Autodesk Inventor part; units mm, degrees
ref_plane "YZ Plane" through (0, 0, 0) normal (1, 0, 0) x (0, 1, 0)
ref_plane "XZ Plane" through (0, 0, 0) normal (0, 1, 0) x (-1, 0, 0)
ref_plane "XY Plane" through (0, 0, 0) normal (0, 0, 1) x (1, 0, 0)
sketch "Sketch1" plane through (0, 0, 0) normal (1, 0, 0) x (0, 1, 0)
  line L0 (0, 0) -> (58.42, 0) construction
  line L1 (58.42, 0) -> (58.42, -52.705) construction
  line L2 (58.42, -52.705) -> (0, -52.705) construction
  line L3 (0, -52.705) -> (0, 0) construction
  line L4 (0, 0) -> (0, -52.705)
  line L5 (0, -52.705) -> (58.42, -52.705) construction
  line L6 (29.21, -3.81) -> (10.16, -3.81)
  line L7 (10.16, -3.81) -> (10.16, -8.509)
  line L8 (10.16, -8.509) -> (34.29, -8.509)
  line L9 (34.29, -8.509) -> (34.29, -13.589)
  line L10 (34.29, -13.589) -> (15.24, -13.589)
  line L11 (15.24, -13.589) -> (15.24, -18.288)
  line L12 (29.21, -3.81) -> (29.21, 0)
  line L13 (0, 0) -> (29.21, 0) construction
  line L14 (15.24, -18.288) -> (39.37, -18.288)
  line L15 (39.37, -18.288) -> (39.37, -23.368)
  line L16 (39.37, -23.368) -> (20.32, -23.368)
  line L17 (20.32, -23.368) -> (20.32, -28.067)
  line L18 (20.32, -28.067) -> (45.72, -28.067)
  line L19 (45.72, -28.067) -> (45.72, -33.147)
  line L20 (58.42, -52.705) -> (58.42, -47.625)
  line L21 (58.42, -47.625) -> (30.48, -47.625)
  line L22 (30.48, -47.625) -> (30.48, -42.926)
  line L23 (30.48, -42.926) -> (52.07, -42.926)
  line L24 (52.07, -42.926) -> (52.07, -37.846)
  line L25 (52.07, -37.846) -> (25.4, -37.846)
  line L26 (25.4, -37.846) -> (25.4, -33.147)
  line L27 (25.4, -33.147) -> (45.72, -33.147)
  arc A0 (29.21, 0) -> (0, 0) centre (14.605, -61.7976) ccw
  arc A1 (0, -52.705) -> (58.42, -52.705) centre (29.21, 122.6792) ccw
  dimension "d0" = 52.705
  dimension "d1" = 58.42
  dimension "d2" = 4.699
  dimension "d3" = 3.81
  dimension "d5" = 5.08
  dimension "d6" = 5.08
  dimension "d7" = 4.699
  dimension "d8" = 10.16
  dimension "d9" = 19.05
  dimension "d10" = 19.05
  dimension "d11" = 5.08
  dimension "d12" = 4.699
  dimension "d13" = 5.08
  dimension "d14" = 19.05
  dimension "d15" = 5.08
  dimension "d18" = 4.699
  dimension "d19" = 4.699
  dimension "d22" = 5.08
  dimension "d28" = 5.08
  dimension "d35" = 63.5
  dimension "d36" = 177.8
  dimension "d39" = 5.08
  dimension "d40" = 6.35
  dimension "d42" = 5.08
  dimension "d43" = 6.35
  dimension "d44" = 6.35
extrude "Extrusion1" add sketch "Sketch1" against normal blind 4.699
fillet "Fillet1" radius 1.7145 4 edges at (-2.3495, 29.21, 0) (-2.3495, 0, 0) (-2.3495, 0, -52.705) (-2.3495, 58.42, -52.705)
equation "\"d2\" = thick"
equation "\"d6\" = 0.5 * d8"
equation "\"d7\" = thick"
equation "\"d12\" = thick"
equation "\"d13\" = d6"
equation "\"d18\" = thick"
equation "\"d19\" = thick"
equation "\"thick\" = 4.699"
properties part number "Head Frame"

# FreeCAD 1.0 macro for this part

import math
import FreeCAD as App
import Part
import Sketcher

V = App.Vector
Q = App.Units.Quantity


def edges_at(feature, points):
    """Names of the edges that pass closest to the given points."""
    edges = feature.Shape.Edges
    near = lambda p: min(range(len(edges)), key=lambda i: edges[i].distToShape(Part.Vertex(*p))[0])
    return sorted({f"Edge{near(p) + 1}" for p in points})

doc = App.newDocument("Part")
body = doc.addObject("PartDesign::Body", "Body")

# Sketch on YZ plane
sketch1 = body.newObject("Sketcher::SketchObject", "Sketch")
sketch1.AttachmentSupport = (doc.getObject("YZ_Plane"), [""])
sketch1.MapMode = "FlatFace"
sketch1.addGeometry(Part.ArcOfCircle(Part.Circle(V(14.6, -61.8, 0), V(0, 0, 1), 63.5), math.radians(77), math.radians(103)), False)
sketch1.addGeometry(Part.LineSegment(V(0, 0, 0), V(0, -52.7, 0)), False)
sketch1.addGeometry(Part.ArcOfCircle(Part.Circle(V(29.2, 122.7, 0), V(0, 0, 1), 177.8), math.radians(-99.46), math.radians(-80.54)), False)
sketch1.addGeometry(Part.LineSegment(V(58.4, -52.7, 0), V(58.4, -47.6, 0)), False)
sketch1.addGeometry(Part.LineSegment(V(58.4, -47.6, 0), V(30.5, -47.6, 0)), False)
sketch1.addGeometry(Part.LineSegment(V(30.5, -47.6, 0), V(30.5, -42.9, 0)), False)
sketch1.addGeometry(Part.LineSegment(V(30.5, -42.9, 0), V(52.1, -42.9, 0)), False)
sketch1.addGeometry(Part.LineSegment(V(52.1, -42.9, 0), V(52.1, -37.8, 0)), False)
sketch1.addGeometry(Part.LineSegment(V(52.1, -37.8, 0), V(25.4, -37.8, 0)), False)
sketch1.addGeometry(Part.LineSegment(V(25.4, -37.8, 0), V(25.4, -33.1, 0)), False)
sketch1.addGeometry(Part.LineSegment(V(25.4, -33.1, 0), V(45.7, -33.1, 0)), False)
sketch1.addGeometry(Part.LineSegment(V(45.7, -33.1, 0), V(45.7, -28.1, 0)), False)
sketch1.addGeometry(Part.LineSegment(V(45.7, -28.1, 0), V(20.3, -28.1, 0)), False)
sketch1.addGeometry(Part.LineSegment(V(20.3, -28.1, 0), V(20.3, -23.4, 0)), False)
sketch1.addGeometry(Part.LineSegment(V(20.3, -23.4, 0), V(39.4, -23.4, 0)), False)
sketch1.addGeometry(Part.LineSegment(V(39.4, -23.4, 0), V(39.4, -18.3, 0)), False)
sketch1.addGeometry(Part.LineSegment(V(39.4, -18.3, 0), V(15.2, -18.3, 0)), False)
sketch1.addGeometry(Part.LineSegment(V(15.2, -18.3, 0), V(15.2, -13.6, 0)), False)
sketch1.addGeometry(Part.LineSegment(V(15.2, -13.6, 0), V(34.3, -13.6, 0)), False)
sketch1.addGeometry(Part.LineSegment(V(34.3, -13.6, 0), V(34.3, -8.5, 0)), False)
sketch1.addGeometry(Part.LineSegment(V(34.3, -8.5, 0), V(10.2, -8.5, 0)), False)
sketch1.addGeometry(Part.LineSegment(V(10.2, -8.5, 0), V(10.2, -3.8, 0)), False)
sketch1.addGeometry(Part.LineSegment(V(10.2, -3.8, 0), V(29.2, -3.8, 0)), False)
sketch1.addGeometry(Part.LineSegment(V(29.2, -3.8, 0), V(29.2, 0, 0)), False)
sketch1.addConstraint(Sketcher.Constraint("Coincident", 0, 2, 1, 1))
sketch1.addConstraint(Sketcher.Constraint("Coincident", 1, 2, 2, 1))
sketch1.addConstraint(Sketcher.Constraint("Coincident", 2, 2, 3, 1))
sketch1.addConstraint(Sketcher.Constraint("Coincident", 3, 2, 4, 1))
sketch1.addConstraint(Sketcher.Constraint("Coincident", 4, 2, 5, 1))
sketch1.addConstraint(Sketcher.Constraint("Coincident", 5, 2, 6, 1))
sketch1.addConstraint(Sketcher.Constraint("Coincident", 6, 2, 7, 1))
sketch1.addConstraint(Sketcher.Constraint("Coincident", 7, 2, 8, 1))
sketch1.addConstraint(Sketcher.Constraint("Coincident", 8, 2, 9, 1))
sketch1.addConstraint(Sketcher.Constraint("Coincident", 9, 2, 10, 1))
sketch1.addConstraint(Sketcher.Constraint("Coincident", 10, 2, 11, 1))
sketch1.addConstraint(Sketcher.Constraint("Coincident", 11, 2, 12, 1))
sketch1.addConstraint(Sketcher.Constraint("Coincident", 12, 2, 13, 1))
sketch1.addConstraint(Sketcher.Constraint("Coincident", 13, 2, 14, 1))
sketch1.addConstraint(Sketcher.Constraint("Coincident", 14, 2, 15, 1))
sketch1.addConstraint(Sketcher.Constraint("Coincident", 15, 2, 16, 1))
sketch1.addConstraint(Sketcher.Constraint("Coincident", 16, 2, 17, 1))
sketch1.addConstraint(Sketcher.Constraint("Coincident", 17, 2, 18, 1))
sketch1.addConstraint(Sketcher.Constraint("Coincident", 18, 2, 19, 1))
sketch1.addConstraint(Sketcher.Constraint("Coincident", 19, 2, 20, 1))
sketch1.addConstraint(Sketcher.Constraint("Coincident", 20, 2, 21, 1))
sketch1.addConstraint(Sketcher.Constraint("Coincident", 21, 2, 22, 1))
sketch1.addConstraint(Sketcher.Constraint("Coincident", 22, 2, 23, 1))
sketch1.addConstraint(Sketcher.Constraint("Coincident", 23, 2, 0, 1))
sketch1.addConstraint(Sketcher.Constraint("Vertical", 1))
sketch1.addConstraint(Sketcher.Constraint("Vertical", 3))
sketch1.addConstraint(Sketcher.Constraint("Horizontal", 4))
sketch1.addConstraint(Sketcher.Constraint("Vertical", 5))
sketch1.addConstraint(Sketcher.Constraint("Horizontal", 6))
sketch1.addConstraint(Sketcher.Constraint("Vertical", 7))
sketch1.addConstraint(Sketcher.Constraint("Horizontal", 8))
sketch1.addConstraint(Sketcher.Constraint("Vertical", 9))
sketch1.addConstraint(Sketcher.Constraint("Horizontal", 10))
sketch1.addConstraint(Sketcher.Constraint("Vertical", 11))
sketch1.addConstraint(Sketcher.Constraint("Horizontal", 12))
sketch1.addConstraint(Sketcher.Constraint("Vertical", 13))
sketch1.addConstraint(Sketcher.Constraint("Horizontal", 14))
sketch1.addConstraint(Sketcher.Constraint("Vertical", 15))
sketch1.addConstraint(Sketcher.Constraint("Horizontal", 16))
sketch1.addConstraint(Sketcher.Constraint("Vertical", 17))
sketch1.addConstraint(Sketcher.Constraint("Horizontal", 18))
sketch1.addConstraint(Sketcher.Constraint("Vertical", 19))
sketch1.addConstraint(Sketcher.Constraint("Horizontal", 20))
sketch1.addConstraint(Sketcher.Constraint("Vertical", 21))
sketch1.addConstraint(Sketcher.Constraint("Horizontal", 22))
sketch1.addConstraint(Sketcher.Constraint("Vertical", 23))
sketch1.addConstraint(Sketcher.Constraint("Coincident", 0, 2, -1, 1))
sketch1.addConstraint(Sketcher.Constraint("PointOnObject", 23, 2, -1))
sketch1.addConstraint(Sketcher.Constraint("Horizontal", 1, 2, 2, 2))
sketch1.addConstraint(Sketcher.Constraint("Vertical", 2, 3, 22, 2))
sketch1.addConstraint(Sketcher.Constraint("Equal", 14, 18))
sketch1.addConstraint(Sketcher.Constraint("Equal", 16, 20))
sketch1.addConstraint(Sketcher.Constraint("Equal", 18, 22))
sketch1.addConstraint(Sketcher.Constraint("Equal", 3, 7))
sketch1.addConstraint(Sketcher.Constraint("Equal", 5, 9))
sketch1.addConstraint(Sketcher.Constraint("Equal", 7, 11))
sketch1.addConstraint(Sketcher.Constraint("Equal", 9, 13))
sketch1.addConstraint(Sketcher.Constraint("Equal", 11, 15))
sketch1.addConstraint(Sketcher.Constraint("Equal", 13, 17))
sketch1.addConstraint(Sketcher.Constraint("Equal", 15, 19))
sketch1.addConstraint(Sketcher.Constraint("Equal", 17, 21))
sketch1.addConstraint(Sketcher.Constraint("Radius", 2, Q("7 in")))
sketch1.addConstraint(Sketcher.Constraint("Radius", 0, Q("2.5 in")))
sketch1.addConstraint(Sketcher.Constraint("DistanceY", 3, 1, 3, 2, Q("0.2 in")))
sketch1.addConstraint(Sketcher.Constraint("DistanceX", 14, 1, 14, 2, Q("0.75 in")))
sketch1.addConstraint(Sketcher.Constraint("DistanceY", 23, 1, 23, 2, Q("0.15 in")))
sketch1.addConstraint(Sketcher.Constraint("DistanceX", -1, 1, 2, 2, Q("2.3 in")))
sketch1.addConstraint(Sketcher.Constraint("DistanceX", 8, 2, 5, 2, Q("0.2 in")))
sketch1.addConstraint(Sketcher.Constraint("DistanceX", 12, 2, 9, 2, Q("0.2 in")))
sketch1.addConstraint(Sketcher.Constraint("DistanceX", 16, 2, 13, 2, Q("0.2 in")))
sketch1.addConstraint(Sketcher.Constraint("DistanceX", 12, 2, 12, 1, Q("1 in")))
sketch1.addConstraint(Sketcher.Constraint("DistanceY", 1, 2, 1, 1, Q("2.075 in")))
sketch1.addConstraint(Sketcher.Constraint("DistanceX", 6, 2, 3, 2, Q("0.25 in")))
pad1 = body.newObject("PartDesign::Pad", "Pad")
pad1.Profile = sketch1
pad1.Length = Q("0.185 in")
pad1.Reversed = True
doc.recompute()

fillet = body.newObject("PartDesign::Fillet", "Fillet")
fillet.Base = (pad1, edges_at(pad1, [
    (-2.349, 29.21, 0),
    (-2.349, 0, 0),
    (-2.349, 0, -52.705),
    (-2.349, 58.42, -52.705),
]))
fillet.Radius = Q("0.0675 in")

doc.recompute()
